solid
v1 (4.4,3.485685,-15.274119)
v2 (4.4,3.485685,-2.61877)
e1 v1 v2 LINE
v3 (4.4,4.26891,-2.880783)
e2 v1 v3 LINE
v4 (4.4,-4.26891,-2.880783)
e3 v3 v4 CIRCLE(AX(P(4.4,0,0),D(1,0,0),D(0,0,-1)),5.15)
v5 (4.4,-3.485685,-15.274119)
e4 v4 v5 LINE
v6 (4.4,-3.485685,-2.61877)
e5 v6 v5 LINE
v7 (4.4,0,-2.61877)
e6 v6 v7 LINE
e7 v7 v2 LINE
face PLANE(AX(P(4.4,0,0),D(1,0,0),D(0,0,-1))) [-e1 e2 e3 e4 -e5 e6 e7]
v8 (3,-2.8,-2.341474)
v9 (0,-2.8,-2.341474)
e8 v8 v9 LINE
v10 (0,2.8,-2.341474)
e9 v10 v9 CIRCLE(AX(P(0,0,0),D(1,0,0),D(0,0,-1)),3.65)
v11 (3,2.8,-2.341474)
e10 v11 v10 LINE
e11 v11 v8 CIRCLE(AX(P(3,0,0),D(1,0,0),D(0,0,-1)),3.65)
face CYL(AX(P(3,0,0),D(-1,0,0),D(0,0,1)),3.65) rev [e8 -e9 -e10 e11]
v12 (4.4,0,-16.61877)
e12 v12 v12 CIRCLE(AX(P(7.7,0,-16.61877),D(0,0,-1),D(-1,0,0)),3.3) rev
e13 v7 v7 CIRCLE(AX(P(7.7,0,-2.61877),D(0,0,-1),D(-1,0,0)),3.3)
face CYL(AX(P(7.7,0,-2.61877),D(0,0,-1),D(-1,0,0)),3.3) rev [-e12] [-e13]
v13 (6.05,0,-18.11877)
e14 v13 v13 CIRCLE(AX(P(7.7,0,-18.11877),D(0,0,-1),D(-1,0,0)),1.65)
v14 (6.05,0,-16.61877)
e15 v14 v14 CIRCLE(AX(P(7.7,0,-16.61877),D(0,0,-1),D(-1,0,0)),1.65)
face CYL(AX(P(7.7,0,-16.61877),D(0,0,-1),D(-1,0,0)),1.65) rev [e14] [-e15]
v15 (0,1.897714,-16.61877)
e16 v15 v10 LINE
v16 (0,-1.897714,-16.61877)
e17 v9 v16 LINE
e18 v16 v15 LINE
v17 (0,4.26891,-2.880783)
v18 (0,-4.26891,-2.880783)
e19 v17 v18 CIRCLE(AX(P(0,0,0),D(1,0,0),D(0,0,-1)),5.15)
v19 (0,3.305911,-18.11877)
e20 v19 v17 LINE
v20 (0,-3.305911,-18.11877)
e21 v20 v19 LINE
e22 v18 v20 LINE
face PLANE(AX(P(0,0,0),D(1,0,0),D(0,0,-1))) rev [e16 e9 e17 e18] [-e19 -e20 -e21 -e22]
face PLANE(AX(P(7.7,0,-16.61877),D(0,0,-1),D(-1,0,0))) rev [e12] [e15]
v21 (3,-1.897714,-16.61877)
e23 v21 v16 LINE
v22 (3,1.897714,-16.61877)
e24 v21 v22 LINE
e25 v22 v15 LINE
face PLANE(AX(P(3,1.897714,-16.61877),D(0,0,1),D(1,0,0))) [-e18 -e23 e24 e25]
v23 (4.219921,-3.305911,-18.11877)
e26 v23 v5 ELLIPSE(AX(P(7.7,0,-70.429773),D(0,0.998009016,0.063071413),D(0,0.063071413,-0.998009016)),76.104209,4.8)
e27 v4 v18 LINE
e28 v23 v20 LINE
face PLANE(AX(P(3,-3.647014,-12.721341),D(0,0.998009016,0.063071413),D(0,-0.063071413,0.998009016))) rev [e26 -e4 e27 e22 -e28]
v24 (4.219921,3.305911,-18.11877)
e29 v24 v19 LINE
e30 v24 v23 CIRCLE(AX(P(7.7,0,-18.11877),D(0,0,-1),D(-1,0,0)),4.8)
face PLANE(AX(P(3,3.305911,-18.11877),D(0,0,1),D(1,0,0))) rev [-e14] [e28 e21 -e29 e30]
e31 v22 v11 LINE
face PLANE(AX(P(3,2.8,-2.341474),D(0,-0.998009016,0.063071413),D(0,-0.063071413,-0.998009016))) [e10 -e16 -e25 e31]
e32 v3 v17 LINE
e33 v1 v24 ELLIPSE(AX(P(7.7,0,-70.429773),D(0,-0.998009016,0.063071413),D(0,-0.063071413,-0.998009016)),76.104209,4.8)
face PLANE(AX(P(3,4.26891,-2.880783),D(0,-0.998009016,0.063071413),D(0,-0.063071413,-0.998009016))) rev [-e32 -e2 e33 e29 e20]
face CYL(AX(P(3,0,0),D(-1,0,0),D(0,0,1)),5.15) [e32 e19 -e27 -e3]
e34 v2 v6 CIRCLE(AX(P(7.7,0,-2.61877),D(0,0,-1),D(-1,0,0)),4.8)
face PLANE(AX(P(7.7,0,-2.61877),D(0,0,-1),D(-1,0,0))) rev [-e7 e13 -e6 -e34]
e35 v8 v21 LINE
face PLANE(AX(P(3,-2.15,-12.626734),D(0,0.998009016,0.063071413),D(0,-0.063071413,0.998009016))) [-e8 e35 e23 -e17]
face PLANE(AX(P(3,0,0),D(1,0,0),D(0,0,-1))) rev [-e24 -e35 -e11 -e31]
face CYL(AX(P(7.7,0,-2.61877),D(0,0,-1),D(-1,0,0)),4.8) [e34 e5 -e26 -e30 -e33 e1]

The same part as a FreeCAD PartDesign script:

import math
import FreeCAD as App
import Part
import Sketcher
from FreeCAD import Vector
Q = App.Units.Quantity

doc = App.newDocument("Part")
body = doc.addObject("PartDesign::Body", "Body")

# Sketch on YZ plane
sketch1 = doc.addObject("Sketcher::SketchObject", "Sketch")
body.addObject(sketch1)
sketch1.AttachmentSupport = (doc.YZ_Plane, [""])
sketch1.MapMode = "FlatFace"
sketch1.addGeometry(Part.LineSegment(Vector(3.647014, -12.721341, 0), Vector(4.26891, -2.880783, 0)), False)
sketch1.addGeometry(Part.ArcOfCircle(Part.Circle(Vector(0, 0, 0), Vector(0, 0, 1), 5.15), math.radians(-34.01261), math.radians(214.01261)), False)
sketch1.addGeometry(Part.LineSegment(Vector(-4.26891, -2.880783, 0), Vector(-3.647014, -12.721341, 0)), False)
sketch1.addGeometry(Part.LineSegment(Vector(-3.647014, -12.721341, 0), Vector(-3.305911, -18.11877, 0)), False)
sketch1.addGeometry(Part.LineSegment(Vector(-3.305911, -18.11877, 0), Vector(3.305911, -18.11877, 0)), False)
sketch1.addGeometry(Part.LineSegment(Vector(3.305911, -18.11877, 0), Vector(3.647014, -12.721341, 0)), False)
sketch1.addGeometry(Part.LineSegment(Vector(2.8, -2.341474, 0), Vector(2.15, -12.626734, 0)), False)
sketch1.addGeometry(Part.LineSegment(Vector(2.15, -12.626734, 0), Vector(1.897714, -16.61877, 0)), False)
sketch1.addGeometry(Part.LineSegment(Vector(1.897714, -16.61877, 0), Vector(-1.897714, -16.61877, 0)), False)
sketch1.addGeometry(Part.LineSegment(Vector(-1.897714, -16.61877, 0), Vector(-2.15, -12.626734, 0)), False)
sketch1.addGeometry(Part.LineSegment(Vector(-2.15, -12.626734, 0), Vector(-2.8, -2.341474, 0)), False)
sketch1.addGeometry(Part.ArcOfCircle(Part.Circle(Vector(0, 0, 0), Vector(0, 0, 1), 3.65), math.radians(-39.903739), math.radians(219.903739)), False)
sketch1.addConstraint(Sketcher.Constraint("Coincident", 0, 2, 1, 1))
sketch1.addConstraint(Sketcher.Constraint("Coincident", 1, 2, 2, 1))
sketch1.addConstraint(Sketcher.Constraint("Coincident", 2, 2, 3, 1))
sketch1.addConstraint(Sketcher.Constraint("Coincident", 3, 2, 4, 1))
sketch1.addConstraint(Sketcher.Constraint("Coincident", 4, 2, 5, 1))
sketch1.addConstraint(Sketcher.Constraint("Coincident", 5, 2, 0, 1))
sketch1.addConstraint(Sketcher.Constraint("Coincident", 6, 2, 7, 1))
sketch1.addConstraint(Sketcher.Constraint("Coincident", 7, 2, 8, 1))
sketch1.addConstraint(Sketcher.Constraint("Coincident", 8, 2, 9, 1))
sketch1.addConstraint(Sketcher.Constraint("Coincident", 9, 2, 10, 1))
sketch1.addConstraint(Sketcher.Constraint("Coincident", 10, 2, 11, 2))
sketch1.addConstraint(Sketcher.Constraint("Coincident", 11, 1, 6, 1))
sketch1.addConstraint(Sketcher.Constraint("Horizontal", 4))
sketch1.addConstraint(Sketcher.Constraint("Horizontal", 8))
sketch1.addConstraint(Sketcher.Constraint("Coincident", 1, 3, -1, 1))
sketch1.addConstraint(Sketcher.Constraint("Coincident", 11, 3, -1, 1))
sketch1.addConstraint(Sketcher.Constraint("Symmetric", 2, 2, 5, 2, -2))
sketch1.addConstraint(Sketcher.Constraint("Symmetric", 6, 2, 9, 2, -2))
sketch1.addConstraint(Sketcher.Constraint("Parallel", 2, 3))
sketch1.addConstraint(Sketcher.Constraint("Parallel", 0, 5))
sketch1.addConstraint(Sketcher.Constraint("Parallel", 5, 6))
sketch1.addConstraint(Sketcher.Constraint("Parallel", 6, 7))
sketch1.addConstraint(Sketcher.Constraint("Parallel", 3, 9))
sketch1.addConstraint(Sketcher.Constraint("Parallel", 9, 10))
sketch1.addConstraint(Sketcher.Constraint("Horizontal", 0, 2, 1, 2))
sketch1.addConstraint(Sketcher.Constraint("Radius", 1, Q("5.15 mm")))
sketch1.addConstraint(Sketcher.Constraint("Radius", 11, Q("3.65 mm")))
sketch1.addConstraint(Sketcher.Constraint("Distance", 7, Q("4 mm")))
sketch1.addConstraint(Sketcher.Constraint("DistanceX", 10, 2, -1, 1, Q("2.8 mm")))
sketch1.addConstraint(Sketcher.Constraint("DistanceY", 4, 2, 7, 2, Q("1.5 mm")))
sketch1.addConstraint(Sketcher.Constraint("DistanceX", 9, 2, 6, 2, Q("4.3 mm")))
sketch1.addConstraint(Sketcher.Constraint("DistanceX", 1, 2, 3, 2, Q("0.962999 mm")))
sketch1.addConstraint(Sketcher.Constraint("DistanceX", 4, 1, 4, 2, Q("6.611822 mm")))
sketch1.addConstraint(Sketcher.Constraint("DistanceX", 7, 2, 5, 2, Q("1.749299 mm")))
pad1 = doc.addObject("PartDesign::Pad", "Pad")
body.addObject(pad1)
pad1.Profile = sketch1
pad1.Length = 3

# Sketch on YZ plane
sketch2 = doc.addObject("Sketcher::SketchObject", "Sketch001")
body.addObject(sketch2)
sketch2.AttachmentSupport = (doc.YZ_Plane, [""])
sketch2.MapMode = "FlatFace"
sketch2.AttachmentOffset = App.Placement(Vector(0, 0, 3), App.Rotation())
sketch2.addGeometry(Part.LineSegment(Vector(-4.26891, -2.880783, 0), Vector(-3.305911, -18.11877, 0)), False)
sketch2.addGeometry(Part.LineSegment(Vector(-3.305911, -18.11877, 0), Vector(3.305911, -18.11877, 0)), False)
sketch2.addGeometry(Part.LineSegment(Vector(3.305911, -18.11877, 0), Vector(4.26891, -2.880783, 0)), False)
sketch2.addGeometry(Part.ArcOfCircle(Part.Circle(Vector(0, 0, 0), Vector(0, 0, 1), 5.15), math.radians(-34.01261), math.radians(214.01261)), False)
sketch2.addConstraint(Sketcher.Constraint("Coincident", 0, 2, 1, 1))
sketch2.addConstraint(Sketcher.Constraint("Coincident", 1, 2, 2, 1))
sketch2.addConstraint(Sketcher.Constraint("Coincident", 2, 2, 3, 1))
sketch2.addConstraint(Sketcher.Constraint("Coincident", 3, 2, 0, 1))
sketch2.addConstraint(Sketcher.Constraint("Horizontal", 1))
sketch2.addConstraint(Sketcher.Constraint("Coincident", 3, 3, -1, 1))
sketch2.addConstraint(Sketcher.Constraint("Horizontal", 2, 2, 3, 2))
sketch2.addConstraint(Sketcher.Constraint("Equal", 0, 2))
sketch2.addConstraint(Sketcher.Constraint("Radius", 3, Q("5.15 mm")))
sketch2.addConstraint(Sketcher.Constraint("DistanceX", 1, 2, 2, 2, Q("0.962999 mm")))
sketch2.addConstraint(Sketcher.Constraint("DistanceX", 1, 1, 1, 2, Q("6.611822 mm")))
sketch2.addConstraint(Sketcher.Constraint("DistanceY", 0, 2, -1, 1, Q("18.11877 mm")))
pad2 = doc.addObject("PartDesign::Pad", "Pad001")
body.addObject(pad2)
pad2.Profile = sketch2
pad2.Length = 1.4

# Sketch on XY plane
sketch3 = doc.addObject("Sketcher::SketchObject", "Sketch002")
body.addObject(sketch3)
sketch3.AttachmentSupport = (doc.XY_Plane, [""])
sketch3.MapMode = "FlatFace"
sketch3.AttachmentOffset = App.Placement(Vector(0, 0, -18.11877), App.Rotation())
sketch3.addGeometry(Part.Circle(Vector(7.7, 0, 0), Vector(0, 0, 1), 4.8), False)
sketch3.addGeometry(Part.Circle(Vector(7.7, 0, 0), Vector(0, 0, 1), 3.3), False)
sketch3.addConstraint(Sketcher.Constraint("Coincident", 1, 3, 0, 3))
sketch3.addConstraint(Sketcher.Constraint("PointOnObject", 0, 3, -1))
sketch3.addConstraint(Sketcher.Constraint("Diameter", 0, Q("9.6 mm")))
sketch3.addConstraint(Sketcher.Constraint("Diameter", 1, Q("6.6 mm")))
sketch3.addConstraint(Sketcher.Constraint("DistanceX", -1, 1, 0, 3, Q("7.7 mm")))
pad3 = doc.addObject("PartDesign::Pad", "Pad002")
body.addObject(pad3)
pad3.Profile = sketch3
pad3.Length = 15.5

# Sketch on XY plane
sketch4 = doc.addObject("Sketcher::SketchObject", "Sketch003")
body.addObject(sketch4)
sketch4.AttachmentSupport = (doc.XY_Plane, [""])
sketch4.MapMode = "FlatFace"
sketch4.AttachmentOffset = App.Placement(Vector(0, 0, -18.11877), App.Rotation())
sketch4.addGeometry(Part.Circle(Vector(7.7, 0, 0), Vector(0, 0, 1), 3.3), False)
sketch4.addGeometry(Part.Circle(Vector(7.7, 0, 0), Vector(0, 0, 1), 1.65), False)
sketch4.addConstraint(Sketcher.Constraint("Coincident", 1, 3, 0, 3))
sketch4.addConstraint(Sketcher.Constraint("PointOnObject", 0, 3, -1))
sketch4.addConstraint(Sketcher.Constraint("Diameter", 0, Q("6.6 mm")))
sketch4.addConstraint(Sketcher.Constraint("Diameter", 1, Q("3.3 mm")))
sketch4.addConstraint(Sketcher.Constraint("DistanceX", -1, 1, 0, 3, Q("7.7 mm")))
pad4 = doc.addObject("PartDesign::Pad", "Pad003")
body.addObject(pad4)
pad4.Profile = sketch4
pad4.Length = 1.5

# Sketch on YZ plane
sketch5 = doc.addObject("Sketcher::SketchObject", "Sketch004")
body.addObject(sketch5)
sketch5.AttachmentSupport = (doc.YZ_Plane, [""])
sketch5.MapMode = "FlatFace"
sketch5.addGeometry(Part.LineSegment(Vector(2.8, -2.341474, 0), Vector(1.897714, -16.61877, 0)), False)
sketch5.addGeometry(Part.LineSegment(Vector(1.897714, -16.61877, 0), Vector(-1.897714, -16.61877, 0)), False)
sketch5.addGeometry(Part.LineSegment(Vector(-1.897714, -16.61877, 0), Vector(-2.8, -2.341474, 0)), False)
sketch5.addGeometry(Part.ArcOfCircle(Part.Circle(Vector(0, 0, 0), Vector(0, 0, 1), 3.65), math.radians(-39.903739), math.radians(219.903739)), False)
sketch5.addConstraint(Sketcher.Constraint("Coincident", 0, 2, 1, 1))
sketch5.addConstraint(Sketcher.Constraint("Coincident", 1, 2, 2, 1))
sketch5.addConstraint(Sketcher.Constraint("Coincident", 2, 2, 3, 2))
sketch5.addConstraint(Sketcher.Constraint("Coincident", 3, 1, 0, 1))
sketch5.addConstraint(Sketcher.Constraint("Horizontal", 1))
sketch5.addConstraint(Sketcher.Constraint("Coincident", 3, 3, -1, 1))
sketch5.addConstraint(Sketcher.Constraint("Horizontal", 2, 2, 3, 1))
sketch5.addConstraint(Sketcher.Constraint("Equal", 0, 2))
sketch5.addConstraint(Sketcher.Constraint("Radius", 3, Q("3.65 mm")))
sketch5.addConstraint(Sketcher.Constraint("DistanceX", 2, 2, -1, 1, Q("2.8 mm")))
sketch5.addConstraint(Sketcher.Constraint("DistanceX", 1, 2, 1, 1, Q("3.795429 mm")))
sketch5.addConstraint(Sketcher.Constraint("Distance", 0, Q("14.305778 mm")))
pocket1 = doc.addObject("PartDesign::Pocket", "Pocket")
body.addObject(pocket1)
pocket1.Profile = sketch5
pocket1.Length = 3
pocket1.Reversed = True

doc.recompute()
